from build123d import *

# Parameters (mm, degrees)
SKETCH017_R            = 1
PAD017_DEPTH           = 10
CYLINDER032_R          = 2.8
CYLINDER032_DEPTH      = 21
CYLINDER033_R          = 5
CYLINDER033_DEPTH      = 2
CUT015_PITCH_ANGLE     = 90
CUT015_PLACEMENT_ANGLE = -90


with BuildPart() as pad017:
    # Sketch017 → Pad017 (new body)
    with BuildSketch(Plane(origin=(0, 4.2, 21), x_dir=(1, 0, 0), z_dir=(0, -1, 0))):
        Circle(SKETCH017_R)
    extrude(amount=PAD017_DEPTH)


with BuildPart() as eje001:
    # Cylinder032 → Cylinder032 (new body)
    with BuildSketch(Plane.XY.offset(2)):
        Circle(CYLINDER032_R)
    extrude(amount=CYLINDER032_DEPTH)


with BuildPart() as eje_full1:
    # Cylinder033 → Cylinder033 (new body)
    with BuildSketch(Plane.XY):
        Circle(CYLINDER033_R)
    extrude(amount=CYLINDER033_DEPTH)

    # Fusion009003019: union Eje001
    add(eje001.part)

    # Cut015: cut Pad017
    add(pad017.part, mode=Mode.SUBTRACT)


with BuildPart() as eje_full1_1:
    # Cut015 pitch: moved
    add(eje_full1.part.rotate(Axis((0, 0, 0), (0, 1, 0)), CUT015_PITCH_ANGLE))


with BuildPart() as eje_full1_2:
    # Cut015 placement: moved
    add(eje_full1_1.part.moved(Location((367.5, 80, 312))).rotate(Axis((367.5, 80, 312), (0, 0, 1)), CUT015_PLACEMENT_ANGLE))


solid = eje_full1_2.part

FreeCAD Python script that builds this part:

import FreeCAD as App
import Part
import Sketcher

V = App.Vector

doc = App.newDocument("Part")
body = doc.addObject("PartDesign::Body", "Body")

sketch1 = doc.addObject("Sketcher::SketchObject", "Sketch")
body.addObject(sketch1)
sketch1.AttachmentSupport = (doc.XZ_Plane, [""])
sketch1.MapMode = "FlatFace"
sketch1.AttachmentOffset = App.Placement(V(0, 0, -4.2), App.Rotation())
sketch1.addGeometry(Part.Circle(V(0, 21, 0), V(0, 0, 1), 1), False)
sketch1.addConstraint(Sketcher.Constraint("PointOnObject", 0, 3, -2))
sketch1.addConstraint(Sketcher.Constraint("Diameter", 0, 2.0))
sketch1.addConstraint(Sketcher.Constraint("DistanceY", -1, 1, 0, 3, 21.0))
pad1 = doc.addObject("PartDesign::Pad", "Pad")
body.addObject(pad1)
pad1.Profile = sketch1
pad1.Length = 10
body2 = doc.addObject("PartDesign::Body", "Body001")

sketch2 = doc.addObject("Sketcher::SketchObject", "Sketch001")
body2.addObject(sketch2)
sketch2.AttachmentSupport = (doc.getObject("XY_Plane001"), [""])
sketch2.MapMode = "FlatFace"
sketch2.AttachmentOffset = App.Placement(V(0, 0, 2), App.Rotation())
sketch2.addGeometry(Part.Circle(V(0, 0, 0), V(0, 0, 1), 2.8), False)
sketch2.addConstraint(Sketcher.Constraint("Coincident", 0, 3, -1, 1))
sketch2.addConstraint(Sketcher.Constraint("Diameter", 0, 5.6))
pad2 = doc.addObject("PartDesign::Pad", "Pad001")
body2.addObject(pad2)
pad2.Profile = sketch2
pad2.Length = 21
body3 = doc.addObject("PartDesign::Body", "Body002")

sketch3 = doc.addObject("Sketcher::SketchObject", "Sketch002")
body3.addObject(sketch3)
sketch3.AttachmentSupport = (doc.getObject("XY_Plane002"), [""])
sketch3.MapMode = "FlatFace"
sketch3.addGeometry(Part.Circle(V(0, 0, 0), V(0, 0, 1), 5), False)
sketch3.addConstraint(Sketcher.Constraint("Coincident", 0, 3, -1, 1))
sketch3.addConstraint(Sketcher.Constraint("Diameter", 0, 10.0))
pad3 = doc.addObject("PartDesign::Pad", "Pad002")
body3.addObject(pad3)
pad3.Profile = sketch3
pad3.Length = 2
doc.recompute()

boolean = doc.addObject("PartDesign::Boolean", "Boolean")
body3.addObject(boolean)
boolean.Type = "Fuse"
boolean.addObjects([body2])
doc.recompute()

boolean2 = doc.addObject("PartDesign::Boolean", "Boolean001")
body3.addObject(boolean2)
boolean2.Type = "Cut"
boolean2.addObjects([body])
body4 = doc.addObject("PartDesign::Body", "Body003")
doc.recompute()

body3.Placement = App.Placement(V(0, 0, 0), App.Rotation(V(0, 1, 0), 90))
boolean3 = doc.addObject("PartDesign::Boolean", "Boolean002")
body4.addObject(boolean3)
boolean3.Type = "Fuse"
boolean3.addObjects([body3])
body5 = doc.addObject("PartDesign::Body", "Body004")
doc.recompute()

body4.Placement = App.Placement(V(367.5, 80, 312), App.Rotation(V(0, 0, 1), 270))
boolean4 = doc.addObject("PartDesign::Boolean", "Boolean003")
body5.addObject(boolean4)
boolean4.Type = "Fuse"
boolean4.addObjects([body4])

doc.recompute()
